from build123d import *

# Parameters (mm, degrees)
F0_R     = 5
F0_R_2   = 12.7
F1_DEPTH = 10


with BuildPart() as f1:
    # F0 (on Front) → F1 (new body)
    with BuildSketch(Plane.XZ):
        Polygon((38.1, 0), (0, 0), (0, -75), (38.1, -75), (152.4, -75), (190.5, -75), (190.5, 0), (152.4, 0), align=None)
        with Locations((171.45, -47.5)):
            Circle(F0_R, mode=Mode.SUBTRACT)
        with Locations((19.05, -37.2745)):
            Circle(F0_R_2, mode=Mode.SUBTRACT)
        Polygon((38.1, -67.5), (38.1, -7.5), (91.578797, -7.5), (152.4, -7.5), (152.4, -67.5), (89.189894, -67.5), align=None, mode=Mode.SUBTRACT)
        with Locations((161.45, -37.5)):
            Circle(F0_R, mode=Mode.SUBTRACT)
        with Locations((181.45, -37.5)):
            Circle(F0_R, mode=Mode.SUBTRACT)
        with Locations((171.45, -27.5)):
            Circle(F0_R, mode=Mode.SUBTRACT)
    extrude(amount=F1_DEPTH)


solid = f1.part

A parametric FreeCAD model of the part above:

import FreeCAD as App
import Part
import Sketcher
from FreeCAD import Vector


def add_polygon(sketch, points):
    """Adds a closed chain of lines whose ends are joined by coincident constraints."""
    first, n = sketch.GeometryCount, len(points)
    for a, b in zip(points, points[1:] + points[:1]):
        sketch.addGeometry(Part.LineSegment(App.Vector(*a, 0), App.Vector(*b, 0)), False)
    for i in range(n):
        sketch.addConstraint(Sketcher.Constraint("Coincident", first + i, 2, first + (i + 1) % n, 1))

doc = App.newDocument("Part")
body = doc.addObject("PartDesign::Body", "Body")

sketch1 = doc.addObject("Sketcher::SketchObject", "Sketch")
body.addObject(sketch1)
sketch1.AttachmentSupport = (doc.XZ_Plane, [""])
sketch1.MapMode = "FlatFace"
add_polygon(sketch1, [(0, 0), (0, -75), (190, -75), (190, 0)])
sketch1.addGeometry(Part.Circle(Vector(171, -48, 0), Vector(0, 0, 1), 5), False)
sketch1.addGeometry(Part.Circle(Vector(19, -37, 0), Vector(0, 0, 1), 13), False)
add_polygon(sketch1, [(152, -68), (38, -68), (38, -8), (152, -8)])
sketch1.addGeometry(Part.Circle(Vector(161, -38, 0), Vector(0, 0, 1), 5), False)
sketch1.addGeometry(Part.Circle(Vector(181, -38, 0), Vector(0, 0, 1), 5), False)
sketch1.addGeometry(Part.Circle(Vector(171, -28, 0), Vector(0, 0, 1), 5), False)
sketch1.addConstraint([
    Sketcher.Constraint("Vertical", 0),
    Sketcher.Constraint("Horizontal", 1),
    Sketcher.Constraint("Vertical", 2),
    Sketcher.Constraint("Horizontal", 3),
    Sketcher.Constraint("Horizontal", 6),
    Sketcher.Constraint("Vertical", 7),
    Sketcher.Constraint("Horizontal", 8),
    Sketcher.Constraint("Vertical", 9),
    Sketcher.Constraint("Coincident", 3, 2, -1, 1),
    Sketcher.Constraint("Equal", 4, 10),
    Sketcher.Constraint("Equal", 10, 11),
    Sketcher.Constraint("Equal", 11, 12),
    Sketcher.Constraint("Horizontal", 10, 3, 11, 3),
    Sketcher.Constraint("Vertical", 4, 3, 12, 3),
    Sketcher.Constraint("Diameter", 4, 10.0),
    Sketcher.Constraint("Diameter", 5, 25.4),
    Sketcher.Constraint("DistanceY", 0, 2, 0, 1, 75.0),
    Sketcher.Constraint("DistanceY", 7, 1, 7, 2, 60.0),
    Sketcher.Constraint("DistanceX", 1, 1, 1, 2, 190.5),
    Sketcher.Constraint("DistanceX", 6, 2, 6, 1, 114.3),
    Sketcher.Constraint("DistanceX", 10, 3, 4, 3, 10.0),
    Sketcher.Constraint("DistanceY", 4, 3, 10, 3, 10.0),
    Sketcher.Constraint("DistanceX", 4, 3, 11, 3, 10.0),
    Sketcher.Constraint("DistanceY", 10, 3, 12, 3, 10.0),
    Sketcher.Constraint("DistanceY", 6, 2, 10, 3, 30.0),
    Sketcher.Constraint("DistanceY", 4, 3, -1, 1, 47.5),
    Sketcher.Constraint("DistanceX", -1, 1, 6, 2, 38.1),
    Sketcher.Constraint("DistanceX", 5, 3, 4, 3, 152.4),
    Sketcher.Constraint("DistanceX", -1, 1, 4, 3, 171.45),
    Sketcher.Constraint("DistanceY", 5, 3, -1, 1, 37.2745),
])
pad1 = doc.addObject("PartDesign::Pad", "Pad")
body.addObject(pad1)
pad1.Profile = sketch1
pad1.Length = 10

doc.recompute()
